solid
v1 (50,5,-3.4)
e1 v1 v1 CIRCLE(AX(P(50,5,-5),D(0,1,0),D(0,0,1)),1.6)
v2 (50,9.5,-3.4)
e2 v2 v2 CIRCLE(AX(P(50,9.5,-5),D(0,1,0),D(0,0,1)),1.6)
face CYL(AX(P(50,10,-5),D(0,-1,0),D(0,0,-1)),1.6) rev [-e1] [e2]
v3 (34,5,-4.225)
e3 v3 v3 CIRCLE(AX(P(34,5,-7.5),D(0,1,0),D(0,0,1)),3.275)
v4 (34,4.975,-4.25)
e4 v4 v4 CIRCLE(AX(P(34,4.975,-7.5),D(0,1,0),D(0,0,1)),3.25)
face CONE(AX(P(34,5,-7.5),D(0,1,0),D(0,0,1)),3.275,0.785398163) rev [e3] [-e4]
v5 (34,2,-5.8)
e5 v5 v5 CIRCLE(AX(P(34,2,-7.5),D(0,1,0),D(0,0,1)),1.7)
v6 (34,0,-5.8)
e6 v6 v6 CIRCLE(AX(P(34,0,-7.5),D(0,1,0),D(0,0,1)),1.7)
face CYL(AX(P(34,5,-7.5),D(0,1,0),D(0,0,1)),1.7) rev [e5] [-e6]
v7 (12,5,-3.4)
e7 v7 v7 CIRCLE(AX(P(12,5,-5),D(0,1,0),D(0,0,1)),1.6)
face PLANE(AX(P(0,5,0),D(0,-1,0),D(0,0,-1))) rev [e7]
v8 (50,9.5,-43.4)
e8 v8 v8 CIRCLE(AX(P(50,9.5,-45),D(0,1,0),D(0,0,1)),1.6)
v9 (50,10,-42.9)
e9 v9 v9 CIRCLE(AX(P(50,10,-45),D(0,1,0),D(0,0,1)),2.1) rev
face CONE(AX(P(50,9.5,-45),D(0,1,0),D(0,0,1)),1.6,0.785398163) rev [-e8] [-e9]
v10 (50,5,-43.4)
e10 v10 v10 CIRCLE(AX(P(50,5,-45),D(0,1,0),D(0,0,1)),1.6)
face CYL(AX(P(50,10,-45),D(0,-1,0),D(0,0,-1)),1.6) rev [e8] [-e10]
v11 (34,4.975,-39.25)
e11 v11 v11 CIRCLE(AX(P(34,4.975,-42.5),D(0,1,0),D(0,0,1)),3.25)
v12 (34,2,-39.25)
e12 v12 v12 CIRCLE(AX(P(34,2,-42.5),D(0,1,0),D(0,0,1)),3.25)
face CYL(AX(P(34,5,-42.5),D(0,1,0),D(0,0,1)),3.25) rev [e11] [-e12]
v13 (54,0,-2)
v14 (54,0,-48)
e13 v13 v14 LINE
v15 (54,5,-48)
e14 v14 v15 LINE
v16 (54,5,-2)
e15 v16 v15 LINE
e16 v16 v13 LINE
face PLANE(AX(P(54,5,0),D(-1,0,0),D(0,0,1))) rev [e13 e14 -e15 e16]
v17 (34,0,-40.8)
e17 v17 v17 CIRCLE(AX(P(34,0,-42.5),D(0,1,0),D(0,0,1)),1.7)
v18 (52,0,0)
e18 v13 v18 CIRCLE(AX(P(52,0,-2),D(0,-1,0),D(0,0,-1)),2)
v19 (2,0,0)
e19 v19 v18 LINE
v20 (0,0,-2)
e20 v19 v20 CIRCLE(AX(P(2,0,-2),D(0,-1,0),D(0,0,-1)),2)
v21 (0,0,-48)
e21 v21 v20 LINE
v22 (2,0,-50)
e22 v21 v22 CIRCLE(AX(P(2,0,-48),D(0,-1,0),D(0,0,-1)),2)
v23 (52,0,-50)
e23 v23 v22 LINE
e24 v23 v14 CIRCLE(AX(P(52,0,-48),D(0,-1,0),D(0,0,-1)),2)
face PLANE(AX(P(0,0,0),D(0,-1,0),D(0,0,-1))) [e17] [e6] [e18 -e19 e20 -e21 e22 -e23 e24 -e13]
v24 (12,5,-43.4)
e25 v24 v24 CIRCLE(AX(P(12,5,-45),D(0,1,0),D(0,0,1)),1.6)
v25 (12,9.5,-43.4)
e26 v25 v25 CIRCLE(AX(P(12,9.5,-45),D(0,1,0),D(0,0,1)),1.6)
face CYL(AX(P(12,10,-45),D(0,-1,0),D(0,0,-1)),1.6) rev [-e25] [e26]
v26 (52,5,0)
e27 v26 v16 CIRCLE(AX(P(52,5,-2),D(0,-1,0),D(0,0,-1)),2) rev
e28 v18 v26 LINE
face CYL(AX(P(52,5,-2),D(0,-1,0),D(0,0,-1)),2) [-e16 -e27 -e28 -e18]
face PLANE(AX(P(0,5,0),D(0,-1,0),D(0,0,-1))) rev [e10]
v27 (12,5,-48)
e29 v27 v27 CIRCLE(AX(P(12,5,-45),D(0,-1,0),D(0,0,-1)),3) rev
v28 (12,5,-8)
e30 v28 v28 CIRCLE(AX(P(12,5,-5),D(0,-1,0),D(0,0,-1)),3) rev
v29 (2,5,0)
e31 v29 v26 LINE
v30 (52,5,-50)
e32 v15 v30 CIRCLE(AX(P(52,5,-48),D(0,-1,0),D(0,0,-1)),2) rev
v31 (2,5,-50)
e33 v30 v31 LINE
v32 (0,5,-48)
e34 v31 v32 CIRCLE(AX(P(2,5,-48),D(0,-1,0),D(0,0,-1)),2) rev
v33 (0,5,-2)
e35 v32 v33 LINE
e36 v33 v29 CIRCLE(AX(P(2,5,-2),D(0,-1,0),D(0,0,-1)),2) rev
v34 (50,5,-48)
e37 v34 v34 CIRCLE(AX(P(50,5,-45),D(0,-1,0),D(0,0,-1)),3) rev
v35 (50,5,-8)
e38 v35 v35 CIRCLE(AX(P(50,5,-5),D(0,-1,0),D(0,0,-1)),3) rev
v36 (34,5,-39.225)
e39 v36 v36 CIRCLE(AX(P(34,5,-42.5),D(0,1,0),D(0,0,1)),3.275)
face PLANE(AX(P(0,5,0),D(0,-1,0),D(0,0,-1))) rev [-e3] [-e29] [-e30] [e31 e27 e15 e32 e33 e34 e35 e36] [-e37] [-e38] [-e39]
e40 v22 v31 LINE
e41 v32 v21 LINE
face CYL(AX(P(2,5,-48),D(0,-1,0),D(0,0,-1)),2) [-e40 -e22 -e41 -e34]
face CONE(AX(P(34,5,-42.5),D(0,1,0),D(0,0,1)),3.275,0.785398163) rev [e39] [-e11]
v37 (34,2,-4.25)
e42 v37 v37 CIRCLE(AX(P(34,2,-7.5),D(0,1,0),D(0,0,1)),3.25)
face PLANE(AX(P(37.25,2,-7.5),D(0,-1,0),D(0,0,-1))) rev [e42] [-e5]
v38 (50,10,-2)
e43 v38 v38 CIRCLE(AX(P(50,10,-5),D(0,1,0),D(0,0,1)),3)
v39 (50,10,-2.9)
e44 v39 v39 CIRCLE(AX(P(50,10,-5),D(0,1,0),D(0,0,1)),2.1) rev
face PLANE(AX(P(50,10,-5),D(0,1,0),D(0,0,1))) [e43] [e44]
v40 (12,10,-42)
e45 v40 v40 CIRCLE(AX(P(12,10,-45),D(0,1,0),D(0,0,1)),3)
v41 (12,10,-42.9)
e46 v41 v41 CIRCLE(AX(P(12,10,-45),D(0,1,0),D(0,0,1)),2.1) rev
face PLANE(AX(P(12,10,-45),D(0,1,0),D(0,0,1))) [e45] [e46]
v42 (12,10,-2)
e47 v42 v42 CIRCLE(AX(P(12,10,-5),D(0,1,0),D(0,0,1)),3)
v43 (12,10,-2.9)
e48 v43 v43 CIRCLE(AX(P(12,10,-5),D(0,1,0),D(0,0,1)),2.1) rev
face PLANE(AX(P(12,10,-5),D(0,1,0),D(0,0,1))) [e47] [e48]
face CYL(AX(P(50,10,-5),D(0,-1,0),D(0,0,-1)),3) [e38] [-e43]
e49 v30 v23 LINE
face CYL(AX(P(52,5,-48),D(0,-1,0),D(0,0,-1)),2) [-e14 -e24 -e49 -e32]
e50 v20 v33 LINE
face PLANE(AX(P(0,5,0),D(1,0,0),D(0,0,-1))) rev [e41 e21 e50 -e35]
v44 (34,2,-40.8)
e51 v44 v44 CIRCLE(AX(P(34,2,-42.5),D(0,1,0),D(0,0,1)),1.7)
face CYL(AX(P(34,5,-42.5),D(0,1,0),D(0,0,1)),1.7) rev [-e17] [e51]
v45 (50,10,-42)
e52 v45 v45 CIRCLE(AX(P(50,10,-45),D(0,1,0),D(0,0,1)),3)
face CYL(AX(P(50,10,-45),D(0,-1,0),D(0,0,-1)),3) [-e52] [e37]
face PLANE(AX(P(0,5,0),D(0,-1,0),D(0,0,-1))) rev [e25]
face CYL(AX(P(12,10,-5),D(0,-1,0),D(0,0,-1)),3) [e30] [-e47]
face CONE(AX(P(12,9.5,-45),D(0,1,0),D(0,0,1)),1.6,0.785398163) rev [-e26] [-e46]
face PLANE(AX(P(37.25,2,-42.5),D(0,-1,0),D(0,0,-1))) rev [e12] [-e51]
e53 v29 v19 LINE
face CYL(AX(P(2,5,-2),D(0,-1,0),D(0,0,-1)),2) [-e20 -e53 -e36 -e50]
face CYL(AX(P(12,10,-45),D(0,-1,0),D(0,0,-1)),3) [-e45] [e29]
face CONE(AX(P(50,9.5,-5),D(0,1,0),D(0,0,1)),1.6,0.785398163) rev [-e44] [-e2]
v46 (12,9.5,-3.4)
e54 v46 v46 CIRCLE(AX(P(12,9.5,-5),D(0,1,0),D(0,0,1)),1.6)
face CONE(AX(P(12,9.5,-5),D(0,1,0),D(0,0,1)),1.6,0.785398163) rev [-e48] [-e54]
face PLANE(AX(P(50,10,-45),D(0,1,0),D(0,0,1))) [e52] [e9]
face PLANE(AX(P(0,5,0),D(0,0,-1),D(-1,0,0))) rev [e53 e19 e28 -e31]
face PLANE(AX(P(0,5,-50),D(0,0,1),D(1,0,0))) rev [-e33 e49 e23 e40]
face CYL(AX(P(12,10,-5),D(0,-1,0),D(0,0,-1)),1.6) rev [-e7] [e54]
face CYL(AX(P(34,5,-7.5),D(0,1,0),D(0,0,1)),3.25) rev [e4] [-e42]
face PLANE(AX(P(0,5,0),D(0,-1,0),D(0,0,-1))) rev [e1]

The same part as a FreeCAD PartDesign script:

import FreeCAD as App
import Part
import Sketcher
Q = App.Units.Quantity


def edges_at(feature, points):
    """Names of the edges that pass closest to the given points."""
    edges = feature.Shape.Edges
    near = lambda p: min(range(len(edges)), key=lambda i: edges[i].distToShape(Part.Vertex(*p))[0])
    return sorted({f"Edge{near(p) + 1}" for p in points})


def add_polygon(sketch, points):
    """Adds a closed chain of lines whose ends are joined by coincident constraints."""
    first, n = sketch.GeometryCount, len(points)
    for a, b in zip(points, points[1:] + points[:1]):
        sketch.addGeometry(Part.LineSegment(App.Vector(*a, 0), App.Vector(*b, 0)), False)
    for i in range(n):
        sketch.addConstraint(Sketcher.Constraint("Coincident", first + i, 2, first + (i + 1) % n, 1))

doc = App.newDocument("Part")
body = doc.addObject("PartDesign::Body", "Body")

sketch1 = body.newObject("Sketcher::SketchObject", "Sketch")
sketch1.AttachmentSupport = (doc.getObject("XZ_Plane"), [""])
sketch1.MapMode = "FlatFace"
add_polygon(sketch1, [(0, -50), (0, 0), (54, 0), (54, -50)])
sketch1.addConstraint(Sketcher.Constraint("Vertical", 0))
sketch1.addConstraint(Sketcher.Constraint("Horizontal", 1))
sketch1.addConstraint(Sketcher.Constraint("Vertical", 2))
sketch1.addConstraint(Sketcher.Constraint("Horizontal", 3))
sketch1.addConstraint(Sketcher.Constraint("Coincident", 0, 2, -1, 1))
sketch1.addConstraint(Sketcher.Constraint("DistanceX", 1, 1, 1, 2, Q("54 mm")))
sketch1.addConstraint(Sketcher.Constraint("DistanceY", 0, 1, 0, 2, Q("50 mm")))
pad1 = body.newObject("PartDesign::Pad", "Pad")
pad1.Profile = sketch1
pad1.Length = 5
pad1.Reversed = True

sketch2 = body.newObject("Sketcher::SketchObject", "Sketch001")
sketch2.AttachmentSupport = (doc.getObject("XZ_Plane"), [""])
sketch2.MapMode = "FlatFace"
sketch2.AttachmentOffset = App.Placement(App.Vector(0, 0, -5), App.Rotation())
sketch2.addGeometry(Part.Circle(App.Vector(50, -5, 0), App.Vector(0, 0, 1), 3), False)
sketch2.addGeometry(Part.Circle(App.Vector(50, -5, 0), App.Vector(0, 0, 1), 1.6), False)
sketch2.addGeometry(Part.Circle(App.Vector(50, -45, 0), App.Vector(0, 0, 1), 3), False)
sketch2.addGeometry(Part.Circle(App.Vector(50, -45, 0), App.Vector(0, 0, 1), 1.6), False)
sketch2.addGeometry(Part.Circle(App.Vector(12, -45, 0), App.Vector(0, 0, 1), 3), False)
sketch2.addGeometry(Part.Circle(App.Vector(12, -45, 0), App.Vector(0, 0, 1), 1.6), False)
sketch2.addGeometry(Part.Circle(App.Vector(12, -5, 0), App.Vector(0, 0, 1), 3), False)
sketch2.addGeometry(Part.Circle(App.Vector(12, -5, 0), App.Vector(0, 0, 1), 1.6), False)
sketch2.addConstraint(Sketcher.Constraint("Coincident", 1, 3, 0, 3))
sketch2.addConstraint(Sketcher.Constraint("Coincident", 3, 3, 2, 3))
sketch2.addConstraint(Sketcher.Constraint("Coincident", 5, 3, 4, 3))
sketch2.addConstraint(Sketcher.Constraint("Coincident", 7, 3, 6, 3))
sketch2.addConstraint(Sketcher.Constraint("Equal", 0, 2))
sketch2.addConstraint(Sketcher.Constraint("Equal", 1, 3))
sketch2.addConstraint(Sketcher.Constraint("Equal", 2, 4))
sketch2.addConstraint(Sketcher.Constraint("Equal", 3, 5))
sketch2.addConstraint(Sketcher.Constraint("Equal", 4, 6))
sketch2.addConstraint(Sketcher.Constraint("Equal", 5, 7))
sketch2.addConstraint(Sketcher.Constraint("Horizontal", 3, 3, 4, 3))
sketch2.addConstraint(Sketcher.Constraint("Horizontal", 1, 3, 6, 3))
sketch2.addConstraint(Sketcher.Constraint("Vertical", 1, 3, 2, 3))
sketch2.addConstraint(Sketcher.Constraint("Vertical", 5, 3, 6, 3))
sketch2.addConstraint(Sketcher.Constraint("Diameter", 0, Q("6 mm")))
sketch2.addConstraint(Sketcher.Constraint("Diameter", 1, Q("3.2 mm")))
sketch2.addConstraint(Sketcher.Constraint("DistanceX", -1, 1, 0, 3, Q("50 mm")))
sketch2.addConstraint(Sketcher.Constraint("DistanceY", 0, 3, -1, 1, Q("5 mm")))
sketch2.addConstraint(Sketcher.Constraint("DistanceY", 2, 3, -1, 1, Q("45 mm")))
sketch2.addConstraint(Sketcher.Constraint("DistanceX", -1, 1, 4, 3, Q("12 mm")))
pad2 = body.newObject("PartDesign::Pad", "Pad001")
pad2.Profile = sketch2
pad2.Length = 5
pad2.Reversed = True

sketch3 = body.newObject("Sketcher::SketchObject", "Sketch002")
sketch3.AttachmentSupport = (doc.getObject("YZ_Plane"), [""])
sketch3.MapMode = "FlatFace"
sketch3.AttachmentOffset = App.Placement(App.Vector(0, 0, 34), App.Rotation())
add_polygon(sketch3, [(0, -42.5), (5, -42.5), (5, -39.225), (4.975, -39.25), (2, -39.25), (2, -40.8), (0, -40.8)])
sketch3.addGeometry(Part.LineSegment(App.Vector(5, -42.5, 0), App.Vector(0, -42.5, 0)), True)
sketch3.addConstraint(Sketcher.Constraint("Horizontal", 0))
sketch3.addConstraint(Sketcher.Constraint("Vertical", 1))
sketch3.addConstraint(Sketcher.Constraint("Horizontal", 3))
sketch3.addConstraint(Sketcher.Constraint("Vertical", 4))
sketch3.addConstraint(Sketcher.Constraint("Horizontal", 5))
sketch3.addConstraint(Sketcher.Constraint("Vertical", 6))
sketch3.addConstraint(Sketcher.Constraint("Horizontal", 7))
sketch3.addConstraint(Sketcher.Constraint("Coincident", 7, 1, 0, 2))
sketch3.addConstraint(Sketcher.Constraint("PointOnObject", 5, 2, -2))
sketch3.addConstraint(Sketcher.Constraint("PointOnObject", 7, 2, -2))
sketch3.addConstraint(Sketcher.Constraint("DistanceX", 0, 1, 0, 2, Q("5 mm")))
sketch3.addConstraint(Sketcher.Constraint("DistanceX", 5, 2, 5, 1, Q("2 mm")))
sketch3.addConstraint(Sketcher.Constraint("Angle", 2, Q("-135 deg")))
sketch3.addConstraint(Sketcher.Constraint("DistanceY", 6, 2, 6, 1, Q("1.7 mm")))
sketch3.addConstraint(Sketcher.Constraint("DistanceY", 4, 2, 4, 1, Q("1.55 mm")))
sketch3.addConstraint(Sketcher.Constraint("DistanceY", 0, 2, -1, 1, Q("42.5 mm")))
sketch3.addConstraint(Sketcher.Constraint("DistanceX", 3, 2, 3, 1, Q("2.975 mm")))
groove = body.newObject("PartDesign::Groove", "Groove")
groove.Profile = sketch3
groove.ReferenceAxis = (sketch3, ["Axis0"])
groove.Angle = 360
doc.recompute()

linearpattern = body.newObject("PartDesign::LinearPattern", "LinearPattern")
linearpattern.Originals = [groove]
linearpattern.Direction = (doc.getObject("Z_Axis"), [""])
linearpattern.Mode = "offset"
linearpattern.Offset = 35
linearpattern.Occurrences = 2
body.Tip = linearpattern
doc.recompute()

chamfer = body.newObject("PartDesign::Chamfer", "Chamfer")
chamfer.Base = (linearpattern, edges_at(linearpattern, [
    (12, 10, -6.6),
    (12, 10, -46.6),
    (50, 10, -46.6),
    (50, 10, -6.6),
]))
chamfer.Size = 0.5
doc.recompute()

fillet = body.newObject("PartDesign::Fillet", "Fillet")
fillet.Base = (chamfer, edges_at(chamfer, [
    (0, 2.5, -50),
    (54, 2.5, -50),
    (54, 2.5, 0),
    (0, 2.5, 0),
]))
fillet.Radius = 2

doc.recompute()
